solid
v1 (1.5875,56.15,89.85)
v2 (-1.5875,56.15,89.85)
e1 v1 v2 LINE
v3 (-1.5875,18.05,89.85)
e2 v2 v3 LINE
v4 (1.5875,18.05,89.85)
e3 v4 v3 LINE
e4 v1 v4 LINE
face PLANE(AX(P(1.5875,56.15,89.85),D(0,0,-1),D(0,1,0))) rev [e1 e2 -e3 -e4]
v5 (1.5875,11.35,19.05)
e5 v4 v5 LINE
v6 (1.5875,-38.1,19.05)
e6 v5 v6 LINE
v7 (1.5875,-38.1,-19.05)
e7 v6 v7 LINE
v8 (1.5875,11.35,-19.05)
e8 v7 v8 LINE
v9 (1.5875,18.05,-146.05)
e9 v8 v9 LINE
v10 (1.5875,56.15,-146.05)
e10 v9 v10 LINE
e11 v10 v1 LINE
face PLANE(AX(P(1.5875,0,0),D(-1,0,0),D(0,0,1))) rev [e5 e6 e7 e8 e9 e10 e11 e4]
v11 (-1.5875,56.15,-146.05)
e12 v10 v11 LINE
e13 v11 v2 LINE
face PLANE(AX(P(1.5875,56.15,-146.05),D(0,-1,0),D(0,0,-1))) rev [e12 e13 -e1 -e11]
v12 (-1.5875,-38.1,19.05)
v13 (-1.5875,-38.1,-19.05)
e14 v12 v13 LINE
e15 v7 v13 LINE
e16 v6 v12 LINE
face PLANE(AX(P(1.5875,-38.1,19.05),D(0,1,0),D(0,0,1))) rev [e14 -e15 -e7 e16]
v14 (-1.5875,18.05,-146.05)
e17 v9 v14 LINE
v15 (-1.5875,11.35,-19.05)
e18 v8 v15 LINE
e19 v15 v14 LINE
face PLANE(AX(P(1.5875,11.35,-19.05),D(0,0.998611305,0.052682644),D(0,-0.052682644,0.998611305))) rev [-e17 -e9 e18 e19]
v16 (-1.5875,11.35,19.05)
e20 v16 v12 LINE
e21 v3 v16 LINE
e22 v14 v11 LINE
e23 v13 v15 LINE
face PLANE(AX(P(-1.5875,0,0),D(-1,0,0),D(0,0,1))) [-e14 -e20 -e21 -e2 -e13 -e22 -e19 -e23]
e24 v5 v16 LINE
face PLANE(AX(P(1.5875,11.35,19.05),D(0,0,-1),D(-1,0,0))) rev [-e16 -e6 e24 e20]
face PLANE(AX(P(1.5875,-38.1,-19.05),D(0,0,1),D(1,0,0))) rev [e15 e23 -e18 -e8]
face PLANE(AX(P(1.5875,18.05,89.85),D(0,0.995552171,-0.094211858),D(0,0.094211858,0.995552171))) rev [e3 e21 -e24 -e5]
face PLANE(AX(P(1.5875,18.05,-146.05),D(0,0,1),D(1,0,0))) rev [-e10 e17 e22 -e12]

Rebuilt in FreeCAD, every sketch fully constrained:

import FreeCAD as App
import Part
import Sketcher

V = App.Vector
Q = App.Units.Quantity


def add_polygon(sketch, points):
    """Adds a closed chain of lines whose ends are joined by coincident constraints."""
    first, n = sketch.GeometryCount, len(points)
    for a, b in zip(points, points[1:] + points[:1]):
        sketch.addGeometry(Part.LineSegment(App.Vector(*a, 0), App.Vector(*b, 0)), False)
    for i in range(n):
        sketch.addConstraint(Sketcher.Constraint("Coincident", first + i, 2, first + (i + 1) % n, 1))

doc = App.newDocument("Part")
body = doc.addObject("PartDesign::Body", "Body")

sketch1 = doc.addObject("Sketcher::SketchObject", "Sketch")
body.addObject(sketch1)
sketch1.AttachmentSupport = (doc.YZ_Plane, [""])
sketch1.MapMode = "FlatFace"
add_polygon(sketch1, [(11, 19), (-38, 19), (-38, -19), (11, -19), (18, -146), (56, -146), (56, 90), (18, 90)])
sketch1.addConstraint([
    Sketcher.Constraint("Horizontal", 0),
    Sketcher.Constraint("Vertical", 1),
    Sketcher.Constraint("Horizontal", 2),
    Sketcher.Constraint("Horizontal", 4),
    Sketcher.Constraint("Vertical", 5),
    Sketcher.Constraint("Horizontal", 6),
    Sketcher.Constraint("Symmetric", 2, 2, 7, 2, -1),
    Sketcher.Constraint("Vertical", 3, 2, 6, 2),
    Sketcher.Constraint("Equal", 6, 1),
    Sketcher.Constraint("DistanceX", 4, 1, 4, 2, Q("1.5 in")),
    Sketcher.Constraint("DistanceY", 3, 2, 2, 2, Q("5 in")),
    Sketcher.Constraint("DistanceX", 0, 2, -1, 1, Q("1.5 in")),
    Sketcher.Constraint("DistanceX", 0, 2, 0, 1, Q("49.45 mm")),
    Sketcher.Constraint("DistanceY", 5, 1, 5, 2, Q("235.9 mm")),
    Sketcher.Constraint("DistanceX", -1, 1, 3, 2, Q("18.05 mm")),
])
pad1 = doc.addObject("PartDesign::Pad", "Pad")
body.addObject(pad1)
pad1.Profile = sketch1
pad1.Length = Q("0.125 in")
pad1.Midplane = True

doc.recompute()
